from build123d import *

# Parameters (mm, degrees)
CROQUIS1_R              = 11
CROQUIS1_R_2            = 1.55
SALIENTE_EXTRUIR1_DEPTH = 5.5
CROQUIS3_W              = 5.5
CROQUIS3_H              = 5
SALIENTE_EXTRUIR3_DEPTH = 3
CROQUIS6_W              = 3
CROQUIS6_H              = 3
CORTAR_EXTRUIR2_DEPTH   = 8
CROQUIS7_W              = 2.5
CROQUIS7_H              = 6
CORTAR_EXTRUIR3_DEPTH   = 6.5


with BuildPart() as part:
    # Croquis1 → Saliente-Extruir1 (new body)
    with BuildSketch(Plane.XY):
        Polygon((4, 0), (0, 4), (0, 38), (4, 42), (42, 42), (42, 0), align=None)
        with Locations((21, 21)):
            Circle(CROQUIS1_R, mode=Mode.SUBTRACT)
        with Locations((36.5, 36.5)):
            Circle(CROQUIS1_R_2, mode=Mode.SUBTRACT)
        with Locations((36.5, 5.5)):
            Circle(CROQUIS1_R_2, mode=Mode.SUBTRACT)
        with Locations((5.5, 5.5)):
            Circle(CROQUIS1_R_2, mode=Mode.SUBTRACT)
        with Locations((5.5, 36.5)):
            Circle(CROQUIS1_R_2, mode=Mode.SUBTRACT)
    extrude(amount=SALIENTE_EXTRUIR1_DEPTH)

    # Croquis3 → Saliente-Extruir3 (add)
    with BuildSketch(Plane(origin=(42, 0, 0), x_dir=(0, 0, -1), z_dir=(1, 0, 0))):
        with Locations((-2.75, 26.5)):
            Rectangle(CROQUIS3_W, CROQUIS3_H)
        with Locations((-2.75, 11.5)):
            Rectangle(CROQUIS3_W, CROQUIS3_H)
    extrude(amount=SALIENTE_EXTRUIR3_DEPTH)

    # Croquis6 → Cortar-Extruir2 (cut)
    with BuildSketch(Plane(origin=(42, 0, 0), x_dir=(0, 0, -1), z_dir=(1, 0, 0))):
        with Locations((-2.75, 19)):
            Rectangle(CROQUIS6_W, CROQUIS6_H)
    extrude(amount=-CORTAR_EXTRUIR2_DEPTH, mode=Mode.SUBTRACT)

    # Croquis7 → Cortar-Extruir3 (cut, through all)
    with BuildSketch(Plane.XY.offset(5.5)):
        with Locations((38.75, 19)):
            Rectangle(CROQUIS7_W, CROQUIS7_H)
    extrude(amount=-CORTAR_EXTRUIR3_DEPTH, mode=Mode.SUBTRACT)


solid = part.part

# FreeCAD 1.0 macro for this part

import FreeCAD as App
import Part
import Sketcher

V = App.Vector
Q = App.Units.Quantity

doc = App.newDocument("Part")
body = doc.addObject("PartDesign::Body", "Body")

# Sketch on XY plane
sketch1 = body.newObject("Sketcher::SketchObject", "Sketch")
sketch1.AttachmentSupport = (doc.getObject("XY_Plane"), [""])
sketch1.MapMode = "FlatFace"
sketch1.addGeometry([
    Part.LineSegment(V(0, 4, 0), V(4, 0, 0)),  # 0
    Part.LineSegment(V(4, 0, 0), V(42, 0, 0)),  # 1
    Part.LineSegment(V(42, 0, 0), V(42, 42, 0)),  # 2
    Part.LineSegment(V(42, 42, 0), V(4, 42, 0)),  # 3
    Part.LineSegment(V(4, 42, 0), V(0, 38, 0)),  # 4
    Part.LineSegment(V(0, 38, 0), V(0, 4, 0)),  # 5
    Part.Circle(V(36.5, 5.5, 0), V(0, 0, 1), 1.55),  # 6
    Part.Circle(V(5.5, 5.5, 0), V(0, 0, 1), 1.55),  # 7
    Part.Circle(V(36.5, 36.5, 0), V(0, 0, 1), 1.55),  # 8
    Part.Circle(V(21, 21, 0), V(0, 0, 1), 11),  # 9
    Part.Circle(V(5.5, 36.5, 0), V(0, 0, 1), 1.55),  # 10
], False)
sketch1.addConstraint([
    Sketcher.Constraint("Coincident", 0, 2, 1, 1),
    Sketcher.Constraint("Coincident", 1, 2, 2, 1),
    Sketcher.Constraint("Coincident", 2, 2, 3, 1),
    Sketcher.Constraint("Coincident", 3, 2, 4, 1),
    Sketcher.Constraint("Coincident", 4, 2, 5, 1),
    Sketcher.Constraint("Coincident", 5, 2, 0, 1),
    Sketcher.Constraint("Horizontal", 1),
    Sketcher.Constraint("Vertical", 2),
    Sketcher.Constraint("Horizontal", 3),
    Sketcher.Constraint("Vertical", 5),
    Sketcher.Constraint("Equal", 6, 7),
    Sketcher.Constraint("Equal", 7, 8),
    Sketcher.Constraint("Equal", 8, 10),
    Sketcher.Constraint("PointOnObject", 0, 2, -1),
    Sketcher.Constraint("PointOnObject", 4, 2, -2),
    Sketcher.Constraint("Perpendicular", 0, 4),
    Sketcher.Constraint("Horizontal", 6, 3, 7, 3),
    Sketcher.Constraint("Horizontal", 8, 3, 10, 3),
    Sketcher.Constraint("Vertical", 6, 3, 8, 3),
    Sketcher.Constraint("Vertical", 7, 3, 10, 3),
    Sketcher.Constraint("Vertical", 0, 2, 3, 2),
    Sketcher.Constraint("Equal", 0, 4),
    Sketcher.Constraint("Diameter", 9, Q("22 mm")),
    Sketcher.Constraint("Diameter", 6, Q("3.1 mm")),
    Sketcher.Constraint("DistanceX", 1, 1, 1, 2, Q("38 mm")),
    Sketcher.Constraint("DistanceY", 2, 1, 2, 2, Q("42 mm")),
    Sketcher.Constraint("DistanceY", 5, 2, 5, 1, Q("34 mm")),
    Sketcher.Constraint("DistanceX", -1, 1, 9, 3, Q("21 mm")),
    Sketcher.Constraint("DistanceY", -1, 1, 9, 3, Q("21 mm")),
    Sketcher.Constraint("DistanceX", 7, 3, 6, 3, Q("31 mm")),
    Sketcher.Constraint("DistanceY", 6, 3, 8, 3, Q("31 mm")),
    Sketcher.Constraint("DistanceX", -1, 1, 6, 3, Q("36.5 mm")),
    Sketcher.Constraint("DistanceY", -1, 1, 6, 3, Q("5.5 mm")),
])
pad1 = body.newObject("PartDesign::Pad", "Pad")
pad1.Profile = sketch1
pad1.Length = 5.5

# Sketch on YZ plane
sketch2 = body.newObject("Sketcher::SketchObject", "Sketch001")
sketch2.AttachmentSupport = (doc.getObject("YZ_Plane"), [""])
sketch2.MapMode = "FlatFace"
sketch2.AttachmentOffset = App.Placement(V(0, 0, 42), App.Rotation())
sketch2.addGeometry([
    Part.LineSegment(V(29, 5.5, 0), V(24, 5.5, 0)),  # 0
    Part.LineSegment(V(24, 5.5, 0), V(24, 0, 0)),  # 1
    Part.LineSegment(V(24, 0, 0), V(29, 0, 0)),  # 2
    Part.LineSegment(V(29, 0, 0), V(29, 5.5, 0)),  # 3
    Part.LineSegment(V(14, 5.5, 0), V(9, 5.5, 0)),  # 4
    Part.LineSegment(V(9, 5.5, 0), V(9, 0, 0)),  # 5
    Part.LineSegment(V(9, 0, 0), V(14, 0, 0)),  # 6
    Part.LineSegment(V(14, 0, 0), V(14, 5.5, 0)),  # 7
], False)
sketch2.addConstraint([
    Sketcher.Constraint("Coincident", 0, 2, 1, 1),
    Sketcher.Constraint("Coincident", 1, 2, 2, 1),
    Sketcher.Constraint("Coincident", 2, 2, 3, 1),
    Sketcher.Constraint("Coincident", 3, 2, 0, 1),
    Sketcher.Constraint("Coincident", 4, 2, 5, 1),
    Sketcher.Constraint("Coincident", 5, 2, 6, 1),
    Sketcher.Constraint("Coincident", 6, 2, 7, 1),
    Sketcher.Constraint("Coincident", 7, 2, 4, 1),
    Sketcher.Constraint("Horizontal", 0),
    Sketcher.Constraint("Vertical", 1),
    Sketcher.Constraint("Horizontal", 2),
    Sketcher.Constraint("Vertical", 3),
    Sketcher.Constraint("Horizontal", 4),
    Sketcher.Constraint("Vertical", 5),
    Sketcher.Constraint("Horizontal", 6),
    Sketcher.Constraint("Vertical", 7),
    Sketcher.Constraint("PointOnObject", 1, 2, -1),
    Sketcher.Constraint("PointOnObject", 5, 2, -1),
    Sketcher.Constraint("Horizontal", 3, 2, 4, 2),
    Sketcher.Constraint("Equal", 2, 4),
    Sketcher.Constraint("DistanceX", 0, 2, 0, 1, Q("5 mm")),
    Sketcher.Constraint("DistanceY", 1, 2, 1, 1, Q("5.5 mm")),
    Sketcher.Constraint("DistanceX", -1, 1, 0, 2, Q("24 mm")),
    Sketcher.Constraint("DistanceX", -1, 1, 4, 2, Q("9 mm")),
])
pad2 = body.newObject("PartDesign::Pad", "Pad001")
pad2.Profile = sketch2
pad2.Length = 3

# Sketch on YZ plane
sketch3 = body.newObject("Sketcher::SketchObject", "Sketch002")
sketch3.AttachmentSupport = (doc.getObject("YZ_Plane"), [""])
sketch3.MapMode = "FlatFace"
sketch3.AttachmentOffset = App.Placement(V(0, 0, 42), App.Rotation())
sketch3.addGeometry([
    Part.LineSegment(V(20.5, 4.25, 0), V(17.5, 4.25, 0)),
    Part.LineSegment(V(17.5, 4.25, 0), V(17.5, 1.25, 0)),
    Part.LineSegment(V(17.5, 1.25, 0), V(20.5, 1.25, 0)),
    Part.LineSegment(V(20.5, 1.25, 0), V(20.5, 4.25, 0)),
], False)
sketch3.addConstraint([
    Sketcher.Constraint("Coincident", 0, 2, 1, 1),
    Sketcher.Constraint("Coincident", 1, 2, 2, 1),
    Sketcher.Constraint("Coincident", 2, 2, 3, 1),
    Sketcher.Constraint("Coincident", 3, 2, 0, 1),
    Sketcher.Constraint("Horizontal", 0),
    Sketcher.Constraint("Vertical", 1),
    Sketcher.Constraint("Horizontal", 2),
    Sketcher.Constraint("Vertical", 3),
    Sketcher.Constraint("Equal", 2, 1),
    Sketcher.Constraint("DistanceX", 0, 2, 0, 1, Q("3 mm")),
    Sketcher.Constraint("DistanceX", -1, 1, 0, 2, Q("17.5 mm")),
    Sketcher.Constraint("DistanceY", -1, 1, 0, 2, Q("4.25 mm")),
])
pocket1 = body.newObject("PartDesign::Pocket", "Pocket")
pocket1.Profile = sketch3
pocket1.Length = 8

# Sketch on XY plane
sketch4 = body.newObject("Sketcher::SketchObject", "Sketch003")
sketch4.AttachmentSupport = (doc.getObject("XY_Plane"), [""])
sketch4.MapMode = "FlatFace"
sketch4.AttachmentOffset = App.Placement(V(0, 0, 5.5), App.Rotation())
sketch4.addGeometry([
    Part.LineSegment(V(37.5, 22, 0), V(37.5, 16, 0)),
    Part.LineSegment(V(37.5, 16, 0), V(40, 16, 0)),
    Part.LineSegment(V(40, 16, 0), V(40, 22, 0)),
    Part.LineSegment(V(40, 22, 0), V(37.5, 22, 0)),
], False)
sketch4.addConstraint([
    Sketcher.Constraint("Coincident", 0, 2, 1, 1),
    Sketcher.Constraint("Coincident", 1, 2, 2, 1),
    Sketcher.Constraint("Coincident", 2, 2, 3, 1),
    Sketcher.Constraint("Coincident", 3, 2, 0, 1),
    Sketcher.Constraint("Vertical", 0),
    Sketcher.Constraint("Horizontal", 1),
    Sketcher.Constraint("Vertical", 2),
    Sketcher.Constraint("Horizontal", 3),
    Sketcher.Constraint("DistanceY", 0, 2, 0, 1, Q("6 mm")),
    Sketcher.Constraint("DistanceX", 1, 1, 1, 2, Q("2.5 mm")),
    Sketcher.Constraint("DistanceY", -1, 1, 0, 2, Q("16 mm")),
    Sketcher.Constraint("DistanceX", -1, 1, 1, 2, Q("40 mm")),
])
pocket2 = body.newObject("PartDesign::Pocket", "Pocket001")
pocket2.Profile = sketch4
pocket2.Type = "ThroughAll"

doc.recompute()
